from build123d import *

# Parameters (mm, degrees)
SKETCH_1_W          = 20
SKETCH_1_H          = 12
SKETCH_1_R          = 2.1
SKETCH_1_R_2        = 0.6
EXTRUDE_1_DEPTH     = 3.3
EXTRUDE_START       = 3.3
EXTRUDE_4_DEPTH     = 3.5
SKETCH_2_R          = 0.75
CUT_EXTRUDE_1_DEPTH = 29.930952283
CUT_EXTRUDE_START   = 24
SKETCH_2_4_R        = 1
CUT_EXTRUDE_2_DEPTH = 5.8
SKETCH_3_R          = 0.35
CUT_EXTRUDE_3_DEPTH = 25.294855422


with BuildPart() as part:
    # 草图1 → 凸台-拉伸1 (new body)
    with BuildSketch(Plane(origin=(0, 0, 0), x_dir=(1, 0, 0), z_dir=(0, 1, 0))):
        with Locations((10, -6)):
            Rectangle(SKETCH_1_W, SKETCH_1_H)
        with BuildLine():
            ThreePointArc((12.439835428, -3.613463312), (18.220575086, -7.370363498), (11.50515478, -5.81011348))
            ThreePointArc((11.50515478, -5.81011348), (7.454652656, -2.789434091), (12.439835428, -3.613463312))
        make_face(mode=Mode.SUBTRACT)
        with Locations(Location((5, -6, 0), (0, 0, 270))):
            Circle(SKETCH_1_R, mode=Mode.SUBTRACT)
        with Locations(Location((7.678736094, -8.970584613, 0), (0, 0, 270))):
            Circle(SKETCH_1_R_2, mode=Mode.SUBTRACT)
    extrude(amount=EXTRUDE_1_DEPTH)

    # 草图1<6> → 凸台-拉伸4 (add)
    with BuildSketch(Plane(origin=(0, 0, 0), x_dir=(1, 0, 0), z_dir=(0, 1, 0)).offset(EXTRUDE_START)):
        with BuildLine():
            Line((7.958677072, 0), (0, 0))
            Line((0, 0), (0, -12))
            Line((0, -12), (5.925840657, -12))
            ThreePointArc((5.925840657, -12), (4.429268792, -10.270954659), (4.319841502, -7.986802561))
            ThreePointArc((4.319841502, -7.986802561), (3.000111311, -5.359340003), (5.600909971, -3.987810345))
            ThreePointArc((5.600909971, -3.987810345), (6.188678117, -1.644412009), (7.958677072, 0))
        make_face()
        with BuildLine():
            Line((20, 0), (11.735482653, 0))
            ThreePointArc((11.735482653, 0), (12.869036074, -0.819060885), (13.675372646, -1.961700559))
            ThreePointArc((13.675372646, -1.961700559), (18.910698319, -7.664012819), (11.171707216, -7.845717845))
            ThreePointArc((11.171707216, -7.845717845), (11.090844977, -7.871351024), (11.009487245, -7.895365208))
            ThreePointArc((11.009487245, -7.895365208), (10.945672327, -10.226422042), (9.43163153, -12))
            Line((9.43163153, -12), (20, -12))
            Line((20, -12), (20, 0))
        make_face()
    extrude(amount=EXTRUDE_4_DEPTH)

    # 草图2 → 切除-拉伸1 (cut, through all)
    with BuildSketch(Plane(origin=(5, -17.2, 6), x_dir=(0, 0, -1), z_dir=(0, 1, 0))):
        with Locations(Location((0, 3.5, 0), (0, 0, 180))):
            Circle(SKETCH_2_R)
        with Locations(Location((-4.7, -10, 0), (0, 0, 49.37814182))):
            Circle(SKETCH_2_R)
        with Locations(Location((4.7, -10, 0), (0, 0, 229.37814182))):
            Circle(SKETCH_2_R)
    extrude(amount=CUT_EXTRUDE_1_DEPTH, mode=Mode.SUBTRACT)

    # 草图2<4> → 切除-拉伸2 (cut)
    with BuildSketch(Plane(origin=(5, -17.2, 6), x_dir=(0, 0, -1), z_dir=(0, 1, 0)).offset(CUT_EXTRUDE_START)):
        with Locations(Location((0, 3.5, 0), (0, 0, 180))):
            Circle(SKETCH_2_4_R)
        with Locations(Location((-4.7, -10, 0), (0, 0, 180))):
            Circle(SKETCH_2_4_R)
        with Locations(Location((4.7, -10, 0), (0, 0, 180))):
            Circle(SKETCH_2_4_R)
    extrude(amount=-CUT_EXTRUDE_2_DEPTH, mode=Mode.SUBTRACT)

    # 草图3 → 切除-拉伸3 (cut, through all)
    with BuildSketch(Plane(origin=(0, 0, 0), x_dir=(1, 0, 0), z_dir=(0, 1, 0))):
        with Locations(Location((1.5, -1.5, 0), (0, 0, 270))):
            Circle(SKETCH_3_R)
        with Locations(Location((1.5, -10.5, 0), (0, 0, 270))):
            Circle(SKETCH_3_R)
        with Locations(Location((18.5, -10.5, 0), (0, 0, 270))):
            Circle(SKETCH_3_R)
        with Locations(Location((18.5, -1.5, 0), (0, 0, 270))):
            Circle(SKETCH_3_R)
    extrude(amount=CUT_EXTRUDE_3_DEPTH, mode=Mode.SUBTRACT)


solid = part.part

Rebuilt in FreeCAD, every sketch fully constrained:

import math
import FreeCAD as App
import Part
import Sketcher
Q = App.Units.Quantity


def add_polygon(sketch, points):
    """Adds a closed chain of lines whose ends are joined by coincident constraints."""
    first, n = sketch.GeometryCount, len(points)
    for a, b in zip(points, points[1:] + points[:1]):
        sketch.addGeometry(Part.LineSegment(App.Vector(*a, 0), App.Vector(*b, 0)), False)
    for i in range(n):
        sketch.addConstraint(Sketcher.Constraint("Coincident", first + i, 2, first + (i + 1) % n, 1))

doc = App.newDocument("Part")
body = doc.addObject("PartDesign::Body", "Body")

sketch1 = doc.addObject("Sketcher::SketchObject", "Sketch")
body.addObject(sketch1)
sketch1.AttachmentSupport = (doc.XZ_Plane, [""])
sketch1.MapMode = "FlatFace"
add_polygon(sketch1, [(0, 0), (0, 12), (20, 12), (20, 0)])
sketch1.addGeometry(Part.Circle(App.Vector(7.678736, 8.970585, 0), App.Vector(0, 0, 1), 0.6), False)
sketch1.addGeometry(Part.Circle(App.Vector(5, 6, 0), App.Vector(0, 0, 1), 2.1), False)
sketch1.addGeometry(Part.ArcOfCircle(Part.Circle(App.Vector(9.84708, 3.807418, 0), App.Vector(0, 0, 1), 2.6), math.radians(50.377902), math.radians(355.721869)), False)
sketch1.addGeometry(Part.ArcOfCircle(Part.Circle(App.Vector(15, 6, 0), App.Vector(0, 0, 1), 3.5), math.radians(-137.010241), math.radians(183.110012)), False)
sketch1.addConstraint([
    Sketcher.Constraint("Coincident", 6, 1, 7, 2),
    Sketcher.Constraint("Coincident", 7, 1, 6, 2),
    Sketcher.Constraint("Vertical", 0),
    Sketcher.Constraint("Horizontal", 1),
    Sketcher.Constraint("Vertical", 2),
    Sketcher.Constraint("Horizontal", 3),
    Sketcher.Constraint("Coincident", 3, 2, -1, 1),
    Sketcher.Constraint("Horizontal", 5, 3, 7, 3),
    Sketcher.Constraint("Diameter", 4, Q("1.2 mm")),
    Sketcher.Constraint("Diameter", 5, Q("4.2 mm")),
    Sketcher.Constraint("Radius", 6, Q("2.6 mm")),
    Sketcher.Constraint("Radius", 7, Q("3.5 mm")),
    Sketcher.Constraint("DistanceX", 1, 1, 1, 2, Q("20 mm")),
    Sketcher.Constraint("DistanceY", 0, 1, 0, 2, Q("12 mm")),
    Sketcher.Constraint("DistanceX", -1, 1, 5, 3, Q("5 mm")),
    Sketcher.Constraint("DistanceY", -1, 1, 5, 3, Q("6 mm")),
    Sketcher.Constraint("DistanceX", -1, 1, 7, 3, Q("15 mm")),
    Sketcher.Constraint("DistanceX", 4, 3, 7, 1, Q("4.761099 mm")),
    Sketcher.Constraint("DistanceX", -1, 1, 6, 3, Q("9.84708 mm")),
    Sketcher.Constraint("DistanceY", -1, 1, 6, 3, Q("3.807418 mm")),
    Sketcher.Constraint("DistanceY", 6, 1, 4, 3, Q("3.160471 mm")),
])
pad1 = doc.addObject("PartDesign::Pad", "Pad")
body.addObject(pad1)
pad1.Profile = sketch1
pad1.Length = 3.3
pad1.Reversed = True

sketch2 = doc.addObject("Sketcher::SketchObject", "Sketch001")
body.addObject(sketch2)
sketch2.AttachmentSupport = (doc.XZ_Plane, [""])
sketch2.MapMode = "FlatFace"
sketch2.AttachmentOffset = App.Placement(App.Vector(0, 0, -3.3), App.Rotation())
sketch2.addGeometry([
    Part.LineSegment(App.Vector(7.958677, 0, 0), App.Vector(0, 0, 0)),
    Part.LineSegment(App.Vector(0, 0, 0), App.Vector(0, 12, 0)),
    Part.LineSegment(App.Vector(0, 12, 0), App.Vector(5.925841, 12, 0)),
    Part.ArcOfCircle(Part.Circle(App.Vector(7.678736, 8.970585, 0), App.Vector(0, 0, 1), 3.5), math.radians(120.054747), math.radians(196.324708)),
    Part.ArcOfCircle(Part.Circle(App.Vector(5, 6, 0), App.Vector(0, 0, 1), 2.1), math.radians(108.898037), math.radians(286.627459)),
    Part.ArcOfCircle(Part.Circle(App.Vector(9.84708, 3.807418, 0), App.Vector(0, 0, 1), 4.25), math.radians(177.567341), math.radians(243.619515)),
    Part.LineSegment(App.Vector(20, 0, 0), App.Vector(11.735483, 0, 0)),
    Part.ArcOfCircle(Part.Circle(App.Vector(9.84708, 3.807418, 0), App.Vector(0, 0, 1), 4.25), math.radians(-63.619515), math.radians(-25.739905)),
    Part.ArcOfCircle(Part.Circle(App.Vector(15, 6, 0), App.Vector(0, 0, 1), 4.25), math.radians(-108.160325), math.radians(154.260095)),
    Part.ArcOfCircle(Part.Circle(App.Vector(9.84708, 3.807419, 0), App.Vector(0, 0, 1), 4.249999), math.radians(71.839675), math.radians(74.126903)),
    Part.ArcOfCircle(Part.Circle(App.Vector(7.678736, 8.970585, 0), App.Vector(0, 0, 1), 3.5), math.radians(-17.890904), math.radians(59.945253)),
    Part.LineSegment(App.Vector(9.431632, 12, 0), App.Vector(20, 12, 0)),
    Part.LineSegment(App.Vector(20, 12, 0), App.Vector(20, 0, 0)),
], False)
sketch2.addConstraint([
    Sketcher.Constraint("Coincident", 0, 2, 1, 1),
    Sketcher.Constraint("Coincident", 1, 2, 2, 1),
    Sketcher.Constraint("Coincident", 2, 2, 3, 1),
    Sketcher.Constraint("Coincident", 3, 2, 4, 1),
    Sketcher.Constraint("Coincident", 4, 2, 5, 1),
    Sketcher.Constraint("Coincident", 5, 2, 0, 1),
    Sketcher.Constraint("Coincident", 6, 2, 7, 1),
    Sketcher.Constraint("Coincident", 7, 2, 8, 1),
    Sketcher.Constraint("Coincident", 8, 2, 9, 1),
    Sketcher.Constraint("Coincident", 9, 2, 10, 1),
    Sketcher.Constraint("Coincident", 10, 2, 11, 1),
    Sketcher.Constraint("Coincident", 11, 2, 12, 1),
    Sketcher.Constraint("Coincident", 12, 2, 6, 1),
    Sketcher.Constraint("Horizontal", 0),
    Sketcher.Constraint("Vertical", 1),
    Sketcher.Constraint("Horizontal", 2),
    Sketcher.Constraint("Horizontal", 6),
    Sketcher.Constraint("Horizontal", 11),
    Sketcher.Constraint("Vertical", 12),
    Sketcher.Constraint("Coincident", 0, 2, -1, 1),
    Sketcher.Constraint("Coincident", 7, 3, 5, 3),
    Sketcher.Constraint("Coincident", 9, 3, 5, 3),
    Sketcher.Constraint("Coincident", 10, 3, 3, 3),
    Sketcher.Constraint("Equal", 5, 7),
    Sketcher.Constraint("Equal", 7, 8),
    Sketcher.Constraint("Equal", 8, 9),
    Sketcher.Constraint("Equal", 3, 10),
    Sketcher.Constraint("PointOnObject", 6, 2, -1),
    Sketcher.Constraint("Horizontal", 4, 3, 8, 3),
    Sketcher.Constraint("Horizontal", 2, 2, 10, 2),
    Sketcher.Constraint("Radius", 3, Q("3.5 mm")),
    Sketcher.Constraint("Radius", 4, Q("2.1 mm")),
    Sketcher.Constraint("DistanceY", 1, 1, 1, 2, Q("12 mm")),
    Sketcher.Constraint("Radius", 5, Q("4.25 mm")),
    Sketcher.Constraint("DistanceX", -1, 1, 4, 3, Q("5 mm")),
    Sketcher.Constraint("DistanceY", -1, 1, 4, 3, Q("6 mm")),
    Sketcher.Constraint("DistanceX", -1, 1, 8, 3, Q("15 mm")),
    Sketcher.Constraint("DistanceX", -1, 1, 11, 2, Q("20 mm")),
    Sketcher.Constraint("DistanceX", 3, 2, 2, 2, Q("1.605999 mm")),
    Sketcher.Constraint("DistanceX", 2, 1, 2, 2, Q("5.925841 mm")),
    Sketcher.Constraint("DistanceY", -1, 1, 7, 2, Q("1.961701 mm")),
    Sketcher.Constraint("DistanceX", 0, 2, 0, 1, Q("7.958677 mm")),
])
pad2 = doc.addObject("PartDesign::Pad", "Pad001")
body.addObject(pad2)
pad2.Profile = sketch2
pad2.Length = 3.5
pad2.Reversed = True

sketch3 = doc.addObject("Sketcher::SketchObject", "Sketch002")
body.addObject(sketch3)
sketch3.AttachmentSupport = (doc.XZ_Plane, [""])
sketch3.MapMode = "FlatFace"
sketch3.AttachmentOffset = App.Placement(App.Vector(0, 0, 17.2), App.Rotation())
sketch3.addGeometry([
    Part.Circle(App.Vector(1.5, 6, 0), App.Vector(0, 0, 1), 0.75),
    Part.Circle(App.Vector(15, 10.7, 0), App.Vector(0, 0, 1), 0.75),
    Part.Circle(App.Vector(15, 1.3, 0), App.Vector(0, 0, 1), 0.75),
], False)
sketch3.addConstraint([
    Sketcher.Constraint("Equal", 0, 1),
    Sketcher.Constraint("Equal", 1, 2),
    Sketcher.Constraint("Vertical", 1, 3, 2, 3),
    Sketcher.Constraint("Diameter", 0, Q("1.5 mm")),
    Sketcher.Constraint("DistanceY", -1, 1, 0, 3, Q("6 mm")),
    Sketcher.Constraint("DistanceX", -1, 1, 1, 3, Q("15 mm")),
    Sketcher.Constraint("DistanceX", -1, 1, 0, 3, Q("1.5 mm")),
    Sketcher.Constraint("DistanceY", -1, 1, 1, 3, Q("10.7 mm")),
    Sketcher.Constraint("DistanceY", -1, 1, 2, 3, Q("1.3 mm")),
])
pocket1 = doc.addObject("PartDesign::Pocket", "Pocket")
body.addObject(pocket1)
pocket1.Profile = sketch3
pocket1.Type = "ThroughAll"

sketch4 = doc.addObject("Sketcher::SketchObject", "Sketch003")
body.addObject(sketch4)
sketch4.AttachmentSupport = (doc.XZ_Plane, [""])
sketch4.MapMode = "FlatFace"
sketch4.AttachmentOffset = App.Placement(App.Vector(0, 0, -6.8), App.Rotation())
sketch4.addGeometry([
    Part.Circle(App.Vector(1.5, 6, 0), App.Vector(0, 0, 1), 1),
    Part.Circle(App.Vector(15, 10.7, 0), App.Vector(0, 0, 1), 1),
    Part.Circle(App.Vector(15, 1.3, 0), App.Vector(0, 0, 1), 1),
], False)
sketch4.addConstraint([
    Sketcher.Constraint("Equal", 0, 1),
    Sketcher.Constraint("Equal", 1, 2),
    Sketcher.Constraint("Vertical", 1, 3, 2, 3),
    Sketcher.Constraint("Diameter", 0, Q("2 mm")),
    Sketcher.Constraint("DistanceY", -1, 1, 0, 3, Q("6 mm")),
    Sketcher.Constraint("DistanceX", -1, 1, 1, 3, Q("15 mm")),
    Sketcher.Constraint("DistanceX", -1, 1, 0, 3, Q("1.5 mm")),
    Sketcher.Constraint("DistanceY", -1, 1, 1, 3, Q("10.7 mm")),
    Sketcher.Constraint("DistanceY", -1, 1, 2, 3, Q("1.3 mm")),
])
pocket2 = doc.addObject("PartDesign::Pocket", "Pocket001")
body.addObject(pocket2)
pocket2.Profile = sketch4
pocket2.Length = 5.8
pocket2.Reversed = True

sketch5 = doc.addObject("Sketcher::SketchObject", "Sketch004")
body.addObject(sketch5)
sketch5.AttachmentSupport = (doc.XZ_Plane, [""])
sketch5.MapMode = "FlatFace"
sketch5.addGeometry([
    Part.Circle(App.Vector(1.5, 1.5, 0), App.Vector(0, 0, 1), 0.35),
    Part.Circle(App.Vector(1.5, 10.5, 0), App.Vector(0, 0, 1), 0.35),
    Part.Circle(App.Vector(18.5, 10.5, 0), App.Vector(0, 0, 1), 0.35),
    Part.Circle(App.Vector(18.5, 1.5, 0), App.Vector(0, 0, 1), 0.35),
], False)
sketch5.addConstraint([
    Sketcher.Constraint("Equal", 0, 1),
    Sketcher.Constraint("Equal", 1, 2),
    Sketcher.Constraint("Equal", 2, 3),
    Sketcher.Constraint("Horizontal", 1, 3, 2, 3),
    Sketcher.Constraint("Horizontal", 0, 3, 3, 3),
    Sketcher.Constraint("Vertical", 0, 3, 1, 3),
    Sketcher.Constraint("Vertical", 2, 3, 3, 3),
    Sketcher.Constraint("Diameter", 0, Q("0.7 mm")),
    Sketcher.Constraint("DistanceY", 0, 3, 1, 3, Q("9 mm")),
    Sketcher.Constraint("DistanceX", 1, 3, 2, 3, Q("17 mm")),
    Sketcher.Constraint("DistanceX", -1, 1, 0, 3, Q("1.5 mm")),
    Sketcher.Constraint("DistanceY", -1, 1, 0, 3, Q("1.5 mm")),
])
pocket3 = doc.addObject("PartDesign::Pocket", "Pocket002")
body.addObject(pocket3)
pocket3.Profile = sketch5
pocket3.Type = "ThroughAll"

doc.recompute()
